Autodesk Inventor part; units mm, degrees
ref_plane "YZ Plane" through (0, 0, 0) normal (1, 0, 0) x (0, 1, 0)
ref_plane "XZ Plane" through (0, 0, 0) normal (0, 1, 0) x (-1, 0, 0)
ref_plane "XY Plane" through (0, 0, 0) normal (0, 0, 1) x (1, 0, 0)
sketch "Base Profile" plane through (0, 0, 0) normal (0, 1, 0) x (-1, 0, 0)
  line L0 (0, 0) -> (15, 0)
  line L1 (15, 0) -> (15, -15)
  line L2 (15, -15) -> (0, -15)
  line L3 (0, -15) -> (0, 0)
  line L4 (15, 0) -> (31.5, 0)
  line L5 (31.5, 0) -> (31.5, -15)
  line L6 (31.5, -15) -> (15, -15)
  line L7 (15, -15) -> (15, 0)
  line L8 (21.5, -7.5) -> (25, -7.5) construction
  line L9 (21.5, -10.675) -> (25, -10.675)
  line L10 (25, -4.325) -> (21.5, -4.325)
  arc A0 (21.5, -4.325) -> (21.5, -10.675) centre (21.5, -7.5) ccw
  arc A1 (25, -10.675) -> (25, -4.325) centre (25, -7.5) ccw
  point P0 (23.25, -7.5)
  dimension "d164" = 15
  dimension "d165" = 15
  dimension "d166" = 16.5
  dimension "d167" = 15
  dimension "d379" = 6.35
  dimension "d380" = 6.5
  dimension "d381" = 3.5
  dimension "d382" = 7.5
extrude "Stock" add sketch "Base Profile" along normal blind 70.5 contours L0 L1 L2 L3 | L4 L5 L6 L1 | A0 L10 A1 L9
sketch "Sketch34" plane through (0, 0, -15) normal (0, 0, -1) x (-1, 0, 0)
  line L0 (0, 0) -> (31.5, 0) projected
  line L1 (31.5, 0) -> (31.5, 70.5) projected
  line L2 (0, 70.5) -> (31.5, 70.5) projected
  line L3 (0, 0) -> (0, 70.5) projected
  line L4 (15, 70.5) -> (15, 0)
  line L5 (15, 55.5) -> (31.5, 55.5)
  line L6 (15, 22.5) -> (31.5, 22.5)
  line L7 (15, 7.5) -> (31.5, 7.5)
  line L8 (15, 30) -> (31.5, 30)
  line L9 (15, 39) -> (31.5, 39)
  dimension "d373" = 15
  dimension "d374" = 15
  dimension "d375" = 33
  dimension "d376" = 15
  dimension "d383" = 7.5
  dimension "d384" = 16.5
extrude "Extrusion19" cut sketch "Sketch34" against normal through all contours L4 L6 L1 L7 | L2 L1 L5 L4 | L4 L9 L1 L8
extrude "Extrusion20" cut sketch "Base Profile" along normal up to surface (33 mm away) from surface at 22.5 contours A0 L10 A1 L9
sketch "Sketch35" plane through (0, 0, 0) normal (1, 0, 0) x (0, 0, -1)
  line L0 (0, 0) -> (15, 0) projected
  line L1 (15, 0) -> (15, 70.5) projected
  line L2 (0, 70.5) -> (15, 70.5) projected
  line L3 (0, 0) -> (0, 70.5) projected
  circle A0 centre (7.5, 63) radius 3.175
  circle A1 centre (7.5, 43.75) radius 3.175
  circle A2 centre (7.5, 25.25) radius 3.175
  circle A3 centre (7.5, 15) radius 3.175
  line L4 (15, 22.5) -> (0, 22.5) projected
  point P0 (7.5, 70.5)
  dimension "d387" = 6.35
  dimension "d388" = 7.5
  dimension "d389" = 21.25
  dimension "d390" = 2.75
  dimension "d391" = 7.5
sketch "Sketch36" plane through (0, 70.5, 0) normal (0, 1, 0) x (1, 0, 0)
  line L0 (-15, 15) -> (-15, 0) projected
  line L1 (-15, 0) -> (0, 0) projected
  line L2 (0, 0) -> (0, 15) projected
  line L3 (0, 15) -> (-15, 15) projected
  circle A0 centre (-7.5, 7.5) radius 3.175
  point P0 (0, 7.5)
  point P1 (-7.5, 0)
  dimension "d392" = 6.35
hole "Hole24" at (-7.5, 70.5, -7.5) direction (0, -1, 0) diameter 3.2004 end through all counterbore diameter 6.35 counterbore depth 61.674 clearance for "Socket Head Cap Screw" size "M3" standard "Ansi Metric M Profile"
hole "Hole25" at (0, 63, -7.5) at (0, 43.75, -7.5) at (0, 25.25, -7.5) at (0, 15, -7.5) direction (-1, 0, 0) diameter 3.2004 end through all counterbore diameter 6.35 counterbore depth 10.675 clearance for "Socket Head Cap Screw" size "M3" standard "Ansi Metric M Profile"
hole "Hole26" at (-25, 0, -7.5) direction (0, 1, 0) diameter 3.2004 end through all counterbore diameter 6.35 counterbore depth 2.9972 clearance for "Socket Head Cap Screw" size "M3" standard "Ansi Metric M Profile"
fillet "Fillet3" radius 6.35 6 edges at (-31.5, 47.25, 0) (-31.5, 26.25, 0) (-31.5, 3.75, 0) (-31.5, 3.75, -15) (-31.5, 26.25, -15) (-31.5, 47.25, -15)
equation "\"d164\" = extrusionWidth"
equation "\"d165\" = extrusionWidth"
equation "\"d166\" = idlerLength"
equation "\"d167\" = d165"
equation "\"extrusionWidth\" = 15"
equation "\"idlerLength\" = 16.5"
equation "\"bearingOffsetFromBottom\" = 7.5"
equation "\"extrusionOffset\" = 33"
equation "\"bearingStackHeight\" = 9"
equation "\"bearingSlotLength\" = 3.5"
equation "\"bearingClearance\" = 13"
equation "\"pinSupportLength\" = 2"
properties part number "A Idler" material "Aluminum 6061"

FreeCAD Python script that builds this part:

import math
import FreeCAD as App
import Part
import Sketcher

V = App.Vector


def edges_at(feature, points):
    """Names of the edges that pass closest to the given points."""
    edges = feature.Shape.Edges
    near = lambda p: min(range(len(edges)), key=lambda i: edges[i].distToShape(Part.Vertex(*p))[0])
    return sorted({f"Edge{near(p) + 1}" for p in points})

doc = App.newDocument("Part")
body = doc.addObject("PartDesign::Body", "Body")

# Sketch on XZ plane
sketch1 = body.newObject("Sketcher::SketchObject", "Sketch")
sketch1.AttachmentSupport = (doc.getObject("XZ_Plane"), [""])
sketch1.MapMode = "FlatFace"
sketch1.addGeometry([
    Part.LineSegment(V(0, 0, 0), V(0, -15, 0)),
    Part.LineSegment(V(0, -15, 0), V(-31.5, -15, 0)),
    Part.LineSegment(V(-31.5, -15, 0), V(-31.5, 0, 0)),
    Part.LineSegment(V(-31.5, 0, 0), V(0, 0, 0)),
], False)
sketch1.addConstraint([
    Sketcher.Constraint("Coincident", 0, 2, 1, 1),
    Sketcher.Constraint("Coincident", 1, 2, 2, 1),
    Sketcher.Constraint("Coincident", 2, 2, 3, 1),
    Sketcher.Constraint("Coincident", 3, 2, 0, 1),
    Sketcher.Constraint("Vertical", 0),
    Sketcher.Constraint("Horizontal", 1),
    Sketcher.Constraint("Vertical", 2),
    Sketcher.Constraint("Horizontal", 3),
    Sketcher.Constraint("Coincident", 3, 2, -1, 1),
    Sketcher.Constraint("DistanceY", 0, 2, 0, 1, 15.0),
    Sketcher.Constraint("DistanceX", 1, 2, 1, 1, 31.5),
])
pad1 = body.newObject("PartDesign::Pad", "Pad")
pad1.Profile = sketch1
pad1.Length = 70.5
pad1.Reversed = True

# Sketch on XY plane
sketch2 = body.newObject("Sketcher::SketchObject", "Sketch001")
sketch2.AttachmentSupport = (doc.getObject("XY_Plane"), [""])
sketch2.MapMode = "FlatFace"
sketch2.AttachmentOffset = App.Placement(V(0, 0, -15), App.Rotation())
sketch2.addGeometry([
    Part.LineSegment(V(-15, 22.5, 0), V(-15, 7.5, 0)),  # 0
    Part.LineSegment(V(-15, 7.5, 0), V(-31.5, 7.5, 0)),  # 1
    Part.LineSegment(V(-31.5, 7.5, 0), V(-31.5, 22.5, 0)),  # 2
    Part.LineSegment(V(-31.5, 22.5, 0), V(-15, 22.5, 0)),  # 3
    Part.LineSegment(V(-31.5, 70.5, 0), V(-15, 70.5, 0)),  # 4
    Part.LineSegment(V(-15, 70.5, 0), V(-15, 55.5, 0)),  # 5
    Part.LineSegment(V(-15, 55.5, 0), V(-31.5, 55.5, 0)),  # 6
    Part.LineSegment(V(-31.5, 55.5, 0), V(-31.5, 70.5, 0)),  # 7
    Part.LineSegment(V(-15, 39, 0), V(-15, 30, 0)),  # 8
    Part.LineSegment(V(-15, 30, 0), V(-31.5, 30, 0)),  # 9
    Part.LineSegment(V(-31.5, 30, 0), V(-31.5, 39, 0)),  # 10
    Part.LineSegment(V(-31.5, 39, 0), V(-15, 39, 0)),  # 11
], False)
sketch2.addConstraint([
    Sketcher.Constraint("Coincident", 0, 2, 1, 1),
    Sketcher.Constraint("Coincident", 1, 2, 2, 1),
    Sketcher.Constraint("Coincident", 2, 2, 3, 1),
    Sketcher.Constraint("Coincident", 3, 2, 0, 1),
    Sketcher.Constraint("Coincident", 4, 2, 5, 1),
    Sketcher.Constraint("Coincident", 5, 2, 6, 1),
    Sketcher.Constraint("Coincident", 6, 2, 7, 1),
    Sketcher.Constraint("Coincident", 7, 2, 4, 1),
    Sketcher.Constraint("Coincident", 8, 2, 9, 1),
    Sketcher.Constraint("Coincident", 9, 2, 10, 1),
    Sketcher.Constraint("Coincident", 10, 2, 11, 1),
    Sketcher.Constraint("Coincident", 11, 2, 8, 1),
    Sketcher.Constraint("Vertical", 0),
    Sketcher.Constraint("Horizontal", 1),
    Sketcher.Constraint("Vertical", 2),
    Sketcher.Constraint("Horizontal", 3),
    Sketcher.Constraint("Horizontal", 4),
    Sketcher.Constraint("Vertical", 5),
    Sketcher.Constraint("Horizontal", 6),
    Sketcher.Constraint("Vertical", 7),
    Sketcher.Constraint("Vertical", 8),
    Sketcher.Constraint("Horizontal", 9),
    Sketcher.Constraint("Vertical", 10),
    Sketcher.Constraint("Horizontal", 11),
    Sketcher.Constraint("Vertical", 3, 2, 4, 2),
    Sketcher.Constraint("Vertical", 2, 2, 6, 2),
    Sketcher.Constraint("Vertical", 5, 2, 8, 2),
    Sketcher.Constraint("Vertical", 7, 2, 9, 2),
    Sketcher.Constraint("Equal", 2, 5),
    Sketcher.Constraint("DistanceY", 0, 2, 0, 1, 15.0),
    Sketcher.Constraint("DistanceX", 1, 2, 1, 1, 16.5),
    Sketcher.Constraint("DistanceX", 0, 2, -1, 1, 15.0),
    Sketcher.Constraint("DistanceY", 3, 2, 5, 2, 33.0),
    Sketcher.Constraint("DistanceY", -1, 1, 0, 2, 7.5),
    Sketcher.Constraint("DistanceY", 3, 2, 8, 2, 7.5),
    Sketcher.Constraint("DistanceY", 2, 2, 10, 2, 16.5),
])
pocket1 = body.newObject("PartDesign::Pocket", "Pocket")
pocket1.Profile = sketch2
pocket1.Type = "ThroughAll"
pocket1.Reversed = True

# Sketch on XZ plane
sketch3 = body.newObject("Sketcher::SketchObject", "Sketch002")
sketch3.AttachmentSupport = (doc.getObject("XZ_Plane"), [""])
sketch3.MapMode = "FlatFace"
sketch3.AttachmentOffset = App.Placement(V(0, 0, -22.5), App.Rotation())
sketch3.addGeometry([
    Part.ArcOfCircle(Part.Circle(V(-21.5, -7.5, 0), V(0, 0, 1), 3.175), math.radians(-90), math.radians(90)),
    Part.LineSegment(V(-21.5, -10.675, 0), V(-25, -10.675, 0)),
    Part.ArcOfCircle(Part.Circle(V(-25, -7.5, 0), V(0, 0, 1), 3.175), math.radians(90), math.radians(270)),
    Part.LineSegment(V(-25, -4.325, 0), V(-21.5, -4.325, 0)),
], False)
sketch3.addConstraint([
    Sketcher.Constraint("Tangent", 0, 1, 1, 1),
    Sketcher.Constraint("Tangent", 1, 2, 2, 2),
    Sketcher.Constraint("Tangent", 2, 1, 3, 1),
    Sketcher.Constraint("Tangent", 3, 2, 0, 2),
    Sketcher.Constraint("Horizontal", 1),
    Sketcher.Constraint("Horizontal", 3),
    Sketcher.Constraint("DistanceX", 1, 2, 1, 1, 3.5),
    Sketcher.Constraint("Radius", 0, 3.175),
    Sketcher.Constraint("DistanceY", 0, 3, -1, 1, 7.5),
    Sketcher.Constraint("DistanceX", 2, 3, -1, 1, 25.0),
])
pocket2 = body.newObject("PartDesign::Pocket", "Pocket001")
pocket2.Profile = sketch3
pocket2.Length = 33

# Sketch on XZ plane
sketch4 = body.newObject("Sketcher::SketchObject", "Sketch003")
sketch4.AttachmentSupport = (doc.getObject("XZ_Plane"), [""])
sketch4.MapMode = "FlatFace"
sketch4.AttachmentOffset = App.Placement(V(0, 0, -70.5), App.Rotation())
sketch4.addGeometry(Part.Circle(V(-7.5, -7.5, 0), V(0, 0, 1), 1.6002), False)
sketch4.addConstraint([
    Sketcher.Constraint("Diameter", 0, 3.2004),
    Sketcher.Constraint("DistanceX", 0, 3, -1, 1, 7.5),
    Sketcher.Constraint("DistanceY", 0, 3, -1, 1, 7.5),
])
doc.recompute()
hole = body.newObject("PartDesign::Hole", "Hole")
hole.Profile = sketch4
hole.ThreadType = "None"
hole.Diameter = 3.2004
hole.DepthType = "ThroughAll"
hole.HoleCutType = "Counterbore"
hole.HoleCutDiameter = 6.35
hole.HoleCutDepth = 61.674
hole.Reversed = True

# Sketch on YZ plane
sketch5 = body.newObject("Sketcher::SketchObject", "Sketch004")
sketch5.AttachmentSupport = (doc.getObject("YZ_Plane"), [""])
sketch5.MapMode = "FlatFace"
sketch5.addGeometry([
    Part.Circle(V(63, -7.5, 0), V(0, 0, 1), 1.6002),
    Part.Circle(V(43.75, -7.5, 0), V(0, 0, 1), 1.6002),
    Part.Circle(V(25.25, -7.5, 0), V(0, 0, 1), 1.6002),
    Part.Circle(V(15, -7.5, 0), V(0, 0, 1), 1.6002),
], False)
sketch5.addConstraint([
    Sketcher.Constraint("Equal", 0, 1),
    Sketcher.Constraint("Equal", 1, 2),
    Sketcher.Constraint("Equal", 2, 3),
    Sketcher.Constraint("Horizontal", 0, 3, 1, 3),
    Sketcher.Constraint("Horizontal", 1, 3, 2, 3),
    Sketcher.Constraint("Horizontal", 2, 3, 3, 3),
    Sketcher.Constraint("DistanceX", -1, 1, 0, 3, 63.0),
    Sketcher.Constraint("DistanceX", -1, 1, 3, 3, 15.0),
    Sketcher.Constraint("Diameter", 0, 3.2004),
    Sketcher.Constraint("DistanceY", 0, 3, -1, 1, 7.5),
    Sketcher.Constraint("DistanceX", 2, 3, 1, 3, 18.5),
    Sketcher.Constraint("DistanceX", -1, 1, 1, 3, 43.75),
])
doc.recompute()
hole2 = body.newObject("PartDesign::Hole", "Hole001")
hole2.Profile = sketch5
hole2.ThreadType = "None"
hole2.Diameter = 3.2004
hole2.DepthType = "ThroughAll"
hole2.HoleCutType = "Counterbore"
hole2.HoleCutDiameter = 6.35
hole2.HoleCutDepth = 10.675

# Sketch on XZ plane
sketch6 = body.newObject("Sketcher::SketchObject", "Sketch005")
sketch6.AttachmentSupport = (doc.getObject("XZ_Plane"), [""])
sketch6.MapMode = "FlatFace"
sketch6.addGeometry(Part.Circle(V(-25, -7.5, 0), V(0, 0, 1), 1.6002), False)
sketch6.addConstraint([
    Sketcher.Constraint("DistanceX", 0, 3, -1, 1, 25.0),
    Sketcher.Constraint("Diameter", 0, 3.2004),
    Sketcher.Constraint("DistanceY", 0, 3, -1, 1, 7.5),
])
doc.recompute()
hole3 = body.newObject("PartDesign::Hole", "Hole002")
hole3.Profile = sketch6
hole3.ThreadType = "None"
hole3.Diameter = 3.2004
hole3.DepthType = "ThroughAll"
hole3.HoleCutType = "Counterbore"
hole3.HoleCutDiameter = 6.35
hole3.HoleCutDepth = 2.9972
doc.recompute()

fillet = body.newObject("PartDesign::Fillet", "Fillet")
fillet.Base = (hole3, edges_at(hole3, [
    (-31.5, 47.25, 0),
    (-31.5, 26.25, 0),
    (-31.5, 3.75, 0),
    (-31.5, 3.75, -15),
    (-31.5, 26.25, -15),
    (-31.5, 47.25, -15),
]))
fillet.Radius = 6.35

doc.recompute()
